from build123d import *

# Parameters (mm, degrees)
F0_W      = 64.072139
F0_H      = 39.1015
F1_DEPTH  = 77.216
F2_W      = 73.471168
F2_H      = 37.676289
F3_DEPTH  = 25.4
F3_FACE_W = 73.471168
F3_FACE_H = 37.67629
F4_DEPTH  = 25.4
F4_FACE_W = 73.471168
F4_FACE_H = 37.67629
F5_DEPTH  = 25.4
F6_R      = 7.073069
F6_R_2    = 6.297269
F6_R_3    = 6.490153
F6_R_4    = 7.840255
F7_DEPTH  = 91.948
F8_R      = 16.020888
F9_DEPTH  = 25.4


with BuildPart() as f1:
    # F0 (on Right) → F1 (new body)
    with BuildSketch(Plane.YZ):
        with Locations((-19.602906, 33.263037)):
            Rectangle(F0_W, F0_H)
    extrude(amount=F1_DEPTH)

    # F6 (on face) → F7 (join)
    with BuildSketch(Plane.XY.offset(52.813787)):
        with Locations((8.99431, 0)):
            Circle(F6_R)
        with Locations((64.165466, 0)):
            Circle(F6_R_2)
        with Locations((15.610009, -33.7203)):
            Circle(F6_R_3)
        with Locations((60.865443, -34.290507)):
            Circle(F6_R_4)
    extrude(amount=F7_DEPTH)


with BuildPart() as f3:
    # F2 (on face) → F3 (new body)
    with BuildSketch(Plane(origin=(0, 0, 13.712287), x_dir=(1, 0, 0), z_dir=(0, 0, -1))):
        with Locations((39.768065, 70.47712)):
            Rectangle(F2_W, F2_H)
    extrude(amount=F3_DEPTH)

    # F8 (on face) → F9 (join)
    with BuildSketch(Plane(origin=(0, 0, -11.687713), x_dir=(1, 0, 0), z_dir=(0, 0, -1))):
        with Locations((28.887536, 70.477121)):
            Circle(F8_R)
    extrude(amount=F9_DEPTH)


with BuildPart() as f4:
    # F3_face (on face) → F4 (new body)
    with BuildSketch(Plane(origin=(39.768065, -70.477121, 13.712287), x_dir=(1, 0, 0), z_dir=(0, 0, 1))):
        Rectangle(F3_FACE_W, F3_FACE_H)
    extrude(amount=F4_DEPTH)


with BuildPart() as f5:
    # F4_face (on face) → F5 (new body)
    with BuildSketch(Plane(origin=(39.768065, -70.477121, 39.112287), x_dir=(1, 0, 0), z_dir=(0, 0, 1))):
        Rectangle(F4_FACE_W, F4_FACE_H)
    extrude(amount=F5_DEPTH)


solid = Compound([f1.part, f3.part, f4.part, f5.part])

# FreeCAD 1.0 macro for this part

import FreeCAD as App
import Part
import Sketcher
from FreeCAD import Vector
Q = App.Units.Quantity

doc = App.newDocument("Part")
body = doc.addObject("PartDesign::Body", "Body")

sketch1 = doc.addObject("Sketcher::SketchObject", "Sketch")
body.addObject(sketch1)
sketch1.AttachmentSupport = (doc.YZ_Plane, [""])
sketch1.MapMode = "FlatFace"
sketch1.addGeometry([
    Part.LineSegment(Vector(-52, 53, 0), Vector(-52, 14, 0)),
    Part.LineSegment(Vector(-52, 14, 0), Vector(12, 14, 0)),
    Part.LineSegment(Vector(12, 14, 0), Vector(12, 53, 0)),
    Part.LineSegment(Vector(12, 53, 0), Vector(-52, 53, 0)),
], False)
sketch1.addConstraint([
    Sketcher.Constraint("Coincident", 0, 2, 1, 1),
    Sketcher.Constraint("Coincident", 1, 2, 2, 1),
    Sketcher.Constraint("Coincident", 2, 2, 3, 1),
    Sketcher.Constraint("Coincident", 3, 2, 0, 1),
    Sketcher.Constraint("Vertical", 0),
    Sketcher.Constraint("Horizontal", 1),
    Sketcher.Constraint("Vertical", 2),
    Sketcher.Constraint("Horizontal", 3),
    Sketcher.Constraint("DistanceY", 0, 2, 0, 1, 39.1015),
    Sketcher.Constraint("DistanceX", 1, 1, 1, 2, 64.072139),
    Sketcher.Constraint("DistanceX", 0, 2, -1, 1, 51.638976),
    Sketcher.Constraint("DistanceY", -1, 1, 0, 2, 13.712287),
])
pad1 = doc.addObject("PartDesign::Pad", "Pad")
body.addObject(pad1)
pad1.Profile = sketch1
pad1.Length = Q("3.04 in")

sketch2 = doc.addObject("Sketcher::SketchObject", "Sketch001")
body.addObject(sketch2)
sketch2.AttachmentSupport = (doc.XY_Plane, [""])
sketch2.MapMode = "FlatFace"
sketch2.AttachmentOffset = App.Placement(Vector(0, 0, 52.813787), App.Rotation())
sketch2.addGeometry([
    Part.Circle(Vector(9, 0, 0), Vector(0, 0, 1), 7),
    Part.Circle(Vector(64, 0, 0), Vector(0, 0, 1), 6),
    Part.Circle(Vector(16, -34, 0), Vector(0, 0, 1), 6),
    Part.Circle(Vector(61, -34, 0), Vector(0, 0, 1), 8),
], False)
sketch2.addConstraint([
    Sketcher.Constraint("PointOnObject", 0, 3, -1),
    Sketcher.Constraint("PointOnObject", 1, 3, -1),
    Sketcher.Constraint("Diameter", 3, 15.68051),
    Sketcher.Constraint("Diameter", 0, 14.146138),
    Sketcher.Constraint("Diameter", 1, 12.594538),
    Sketcher.Constraint("Diameter", 2, 12.980306),
    Sketcher.Constraint("DistanceY", 2, 3, -1, 1, 33.7203),
    Sketcher.Constraint("DistanceX", 0, 3, 2, 3, 6.615699),
    Sketcher.Constraint("DistanceX", -1, 1, 0, 3, 8.99431),
    Sketcher.Constraint("DistanceX", -1, 1, 1, 3, 64.165466),
    Sketcher.Constraint("DistanceX", -1, 1, 3, 3, 60.865443),
    Sketcher.Constraint("DistanceY", 3, 3, -1, 1, 34.290507),
])
pad2 = doc.addObject("PartDesign::Pad", "Pad001")
body.addObject(pad2)
pad2.Profile = sketch2
pad2.Length = Q("3.62 in")
body2 = doc.addObject("PartDesign::Body", "Body001")

sketch3 = doc.addObject("Sketcher::SketchObject", "Sketch002")
body2.addObject(sketch3)
sketch3.AttachmentSupport = (doc.getObject("XY_Plane001"), [""])
sketch3.MapMode = "FlatFace"
sketch3.AttachmentOffset = App.Placement(Vector(0, 0, 13.712287), App.Rotation())
sketch3.addGeometry([
    Part.LineSegment(Vector(3, -89, 0), Vector(3, -52, 0)),
    Part.LineSegment(Vector(3, -52, 0), Vector(77, -52, 0)),
    Part.LineSegment(Vector(77, -52, 0), Vector(77, -89, 0)),
    Part.LineSegment(Vector(77, -89, 0), Vector(3, -89, 0)),
], False)
sketch3.addConstraint([
    Sketcher.Constraint("Coincident", 0, 2, 1, 1),
    Sketcher.Constraint("Coincident", 1, 2, 2, 1),
    Sketcher.Constraint("Coincident", 2, 2, 3, 1),
    Sketcher.Constraint("Coincident", 3, 2, 0, 1),
    Sketcher.Constraint("Vertical", 0),
    Sketcher.Constraint("Horizontal", 1),
    Sketcher.Constraint("Vertical", 2),
    Sketcher.Constraint("Horizontal", 3),
    Sketcher.Constraint("DistanceY", 0, 1, 0, 2, 37.676289),
    Sketcher.Constraint("DistanceX", 1, 1, 1, 2, 73.471168),
    Sketcher.Constraint("DistanceX", -1, 1, 0, 2, 3.032481),
    Sketcher.Constraint("DistanceY", 0, 2, -1, 1, 51.638976),
])
pad3 = doc.addObject("PartDesign::Pad", "Pad002")
body2.addObject(pad3)
pad3.Profile = sketch3
pad3.Length = Q("1 in")
pad3.Reversed = True

sketch4 = doc.addObject("Sketcher::SketchObject", "Sketch003")
body2.addObject(sketch4)
sketch4.AttachmentSupport = (doc.getObject("XY_Plane001"), [""])
sketch4.MapMode = "FlatFace"
sketch4.AttachmentOffset = App.Placement(Vector(0, 0, -11.687713), App.Rotation())
sketch4.addGeometry(Part.Circle(Vector(29, -70, 0), Vector(0, 0, 1), 16), False)
sketch4.addConstraint([
    Sketcher.Constraint("Diameter", 0, 32.041776),
    Sketcher.Constraint("DistanceY", 0, 3, -1, 1, 70.477121),
    Sketcher.Constraint("DistanceX", -1, 1, 0, 3, 28.887536),
])
pad4 = doc.addObject("PartDesign::Pad", "Pad003")
body2.addObject(pad4)
pad4.Profile = sketch4
pad4.Length = Q("1 in")
pad4.Reversed = True
body3 = doc.addObject("PartDesign::Body", "Body002")

sketch5 = doc.addObject("Sketcher::SketchObject", "Sketch004")
body3.addObject(sketch5)
sketch5.AttachmentSupport = (doc.getObject("XY_Plane002"), [""])
sketch5.MapMode = "FlatFace"
sketch5.AttachmentOffset = App.Placement(Vector(0, 0, 13.712287), App.Rotation())
sketch5.addGeometry([
    Part.LineSegment(Vector(3, -52, 0), Vector(3, -89, 0)),
    Part.LineSegment(Vector(3, -89, 0), Vector(77, -89, 0)),
    Part.LineSegment(Vector(77, -89, 0), Vector(77, -52, 0)),
    Part.LineSegment(Vector(77, -52, 0), Vector(3, -52, 0)),
], False)
sketch5.addConstraint([
    Sketcher.Constraint("Coincident", 0, 2, 1, 1),
    Sketcher.Constraint("Coincident", 1, 2, 2, 1),
    Sketcher.Constraint("Coincident", 2, 2, 3, 1),
    Sketcher.Constraint("Coincident", 3, 2, 0, 1),
    Sketcher.Constraint("Vertical", 0),
    Sketcher.Constraint("Horizontal", 1),
    Sketcher.Constraint("Vertical", 2),
    Sketcher.Constraint("Horizontal", 3),
    Sketcher.Constraint("DistanceY", 0, 2, 0, 1, 37.67629),
    Sketcher.Constraint("DistanceX", 1, 1, 1, 2, 73.471168),
    Sketcher.Constraint("DistanceX", -1, 1, 0, 2, 3.032481),
    Sketcher.Constraint("DistanceY", 0, 2, -1, 1, 89.315266),
])
pad5 = doc.addObject("PartDesign::Pad", "Pad004")
body3.addObject(pad5)
pad5.Profile = sketch5
pad5.Length = Q("1 in")
body4 = doc.addObject("PartDesign::Body", "Body003")

sketch6 = doc.addObject("Sketcher::SketchObject", "Sketch005")
body4.addObject(sketch6)
sketch6.AttachmentSupport = (doc.getObject("XY_Plane003"), [""])
sketch6.MapMode = "FlatFace"
sketch6.AttachmentOffset = App.Placement(Vector(0, 0, 39.112287), App.Rotation())
sketch6.addGeometry([
    Part.LineSegment(Vector(3, -52, 0), Vector(3, -89, 0)),
    Part.LineSegment(Vector(3, -89, 0), Vector(77, -89, 0)),
    Part.LineSegment(Vector(77, -89, 0), Vector(77, -52, 0)),
    Part.LineSegment(Vector(77, -52, 0), Vector(3, -52, 0)),
], False)
sketch6.addConstraint([
    Sketcher.Constraint("Coincident", 0, 2, 1, 1),
    Sketcher.Constraint("Coincident", 1, 2, 2, 1),
    Sketcher.Constraint("Coincident", 2, 2, 3, 1),
    Sketcher.Constraint("Coincident", 3, 2, 0, 1),
    Sketcher.Constraint("Vertical", 0),
    Sketcher.Constraint("Horizontal", 1),
    Sketcher.Constraint("Vertical", 2),
    Sketcher.Constraint("Horizontal", 3),
    Sketcher.Constraint("DistanceY", 0, 2, 0, 1, 37.67629),
    Sketcher.Constraint("DistanceX", 1, 1, 1, 2, 73.471168),
    Sketcher.Constraint("DistanceX", -1, 1, 0, 2, 3.032481),
    Sketcher.Constraint("DistanceY", 0, 2, -1, 1, 89.315266),
])
pad6 = doc.addObject("PartDesign::Pad", "Pad005")
body4.addObject(pad6)
pad6.Profile = sketch6
pad6.Length = Q("1 in")

doc.recompute()
